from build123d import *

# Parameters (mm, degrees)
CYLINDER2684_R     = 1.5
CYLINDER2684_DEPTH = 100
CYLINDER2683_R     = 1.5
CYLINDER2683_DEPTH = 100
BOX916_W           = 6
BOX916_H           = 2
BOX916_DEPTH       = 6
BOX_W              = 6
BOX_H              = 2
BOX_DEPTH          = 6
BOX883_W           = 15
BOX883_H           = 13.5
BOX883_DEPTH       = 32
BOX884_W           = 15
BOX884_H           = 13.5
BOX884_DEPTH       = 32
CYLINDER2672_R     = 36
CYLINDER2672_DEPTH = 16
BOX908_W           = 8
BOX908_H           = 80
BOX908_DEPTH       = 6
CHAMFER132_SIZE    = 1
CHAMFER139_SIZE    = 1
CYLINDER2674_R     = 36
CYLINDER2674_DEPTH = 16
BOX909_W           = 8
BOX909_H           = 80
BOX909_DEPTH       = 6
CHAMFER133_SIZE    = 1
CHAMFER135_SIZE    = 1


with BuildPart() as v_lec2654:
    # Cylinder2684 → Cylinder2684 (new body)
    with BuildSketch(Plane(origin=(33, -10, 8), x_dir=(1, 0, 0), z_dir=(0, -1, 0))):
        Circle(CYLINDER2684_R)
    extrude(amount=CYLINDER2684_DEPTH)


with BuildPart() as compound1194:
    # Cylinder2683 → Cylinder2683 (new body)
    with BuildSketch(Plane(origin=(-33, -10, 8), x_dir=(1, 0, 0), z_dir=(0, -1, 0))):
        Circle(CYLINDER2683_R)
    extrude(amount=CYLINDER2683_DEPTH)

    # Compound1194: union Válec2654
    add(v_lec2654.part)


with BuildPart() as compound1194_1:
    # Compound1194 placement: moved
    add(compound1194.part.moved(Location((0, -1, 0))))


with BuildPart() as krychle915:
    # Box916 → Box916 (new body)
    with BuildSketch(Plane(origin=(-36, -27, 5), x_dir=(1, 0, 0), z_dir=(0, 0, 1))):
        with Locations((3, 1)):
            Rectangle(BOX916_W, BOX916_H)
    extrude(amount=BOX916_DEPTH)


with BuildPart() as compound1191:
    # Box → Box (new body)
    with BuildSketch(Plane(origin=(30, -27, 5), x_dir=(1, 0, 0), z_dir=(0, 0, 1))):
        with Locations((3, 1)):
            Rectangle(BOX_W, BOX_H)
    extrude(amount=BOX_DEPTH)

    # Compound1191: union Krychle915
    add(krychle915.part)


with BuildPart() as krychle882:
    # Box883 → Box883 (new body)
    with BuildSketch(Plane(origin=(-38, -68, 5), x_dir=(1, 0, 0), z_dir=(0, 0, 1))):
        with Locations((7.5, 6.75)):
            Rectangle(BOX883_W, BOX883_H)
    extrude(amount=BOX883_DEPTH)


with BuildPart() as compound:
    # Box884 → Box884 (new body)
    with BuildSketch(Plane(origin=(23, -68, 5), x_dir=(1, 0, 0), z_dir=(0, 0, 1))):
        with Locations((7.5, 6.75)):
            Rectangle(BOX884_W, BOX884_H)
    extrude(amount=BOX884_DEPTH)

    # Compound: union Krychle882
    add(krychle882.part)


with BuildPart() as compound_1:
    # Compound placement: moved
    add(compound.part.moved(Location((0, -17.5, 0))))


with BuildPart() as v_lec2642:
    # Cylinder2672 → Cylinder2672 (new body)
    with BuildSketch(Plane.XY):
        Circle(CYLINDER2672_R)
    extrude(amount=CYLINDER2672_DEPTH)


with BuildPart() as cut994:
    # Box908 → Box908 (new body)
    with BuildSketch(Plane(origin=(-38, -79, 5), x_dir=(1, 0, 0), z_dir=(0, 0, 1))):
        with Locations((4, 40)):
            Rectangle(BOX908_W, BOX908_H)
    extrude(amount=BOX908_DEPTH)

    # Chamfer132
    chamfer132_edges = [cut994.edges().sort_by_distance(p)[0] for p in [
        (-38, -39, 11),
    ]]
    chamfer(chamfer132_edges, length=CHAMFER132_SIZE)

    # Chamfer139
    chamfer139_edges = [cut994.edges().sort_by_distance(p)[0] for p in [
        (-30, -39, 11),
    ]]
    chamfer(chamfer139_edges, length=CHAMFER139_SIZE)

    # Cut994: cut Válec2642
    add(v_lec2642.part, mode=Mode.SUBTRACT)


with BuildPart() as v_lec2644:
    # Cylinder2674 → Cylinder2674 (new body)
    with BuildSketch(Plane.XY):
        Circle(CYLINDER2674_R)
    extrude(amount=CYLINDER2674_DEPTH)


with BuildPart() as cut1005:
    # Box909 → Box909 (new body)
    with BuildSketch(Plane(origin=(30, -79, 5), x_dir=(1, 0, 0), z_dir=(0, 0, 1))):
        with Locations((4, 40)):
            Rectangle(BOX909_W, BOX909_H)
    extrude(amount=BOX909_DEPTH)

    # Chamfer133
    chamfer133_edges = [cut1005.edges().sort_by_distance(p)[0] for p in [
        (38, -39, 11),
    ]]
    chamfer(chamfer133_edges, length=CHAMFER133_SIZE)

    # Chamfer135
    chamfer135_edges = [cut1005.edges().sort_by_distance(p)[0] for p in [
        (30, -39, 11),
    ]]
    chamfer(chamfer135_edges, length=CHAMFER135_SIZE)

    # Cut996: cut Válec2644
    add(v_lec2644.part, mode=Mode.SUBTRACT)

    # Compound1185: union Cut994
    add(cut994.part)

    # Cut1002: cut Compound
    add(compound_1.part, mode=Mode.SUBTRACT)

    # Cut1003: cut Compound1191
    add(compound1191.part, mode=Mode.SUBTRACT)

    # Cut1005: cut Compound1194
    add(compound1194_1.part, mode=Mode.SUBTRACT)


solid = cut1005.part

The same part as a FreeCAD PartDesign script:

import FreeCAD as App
import Part
import Sketcher
Q = App.Units.Quantity


def edges_at(feature, points):
    """Names of the edges that pass closest to the given points."""
    edges = feature.Shape.Edges
    near = lambda p: min(range(len(edges)), key=lambda i: edges[i].distToShape(Part.Vertex(*p))[0])
    return sorted({f"Edge{near(p) + 1}" for p in points})

doc = App.newDocument("Part")
body = doc.addObject("PartDesign::Body", "Body")

# Sketch on XZ plane
sketch1 = body.newObject("Sketcher::SketchObject", "Sketch")
sketch1.AttachmentSupport = (doc.getObject("XZ_Plane"), [""])
sketch1.MapMode = "FlatFace"
sketch1.AttachmentOffset = App.Placement(App.Vector(0, 0, 10), App.Rotation())
sketch1.addGeometry(Part.Circle(App.Vector(33, 8, 0), App.Vector(0, 0, 1), 1.5), False)
sketch1.addConstraint(Sketcher.Constraint("Diameter", 0, Q("3 mm")))
sketch1.addConstraint(Sketcher.Constraint("DistanceX", -1, 1, 0, 3, Q("33 mm")))
sketch1.addConstraint(Sketcher.Constraint("DistanceY", -1, 1, 0, 3, Q("8 mm")))
pad1 = body.newObject("PartDesign::Pad", "Pad")
pad1.Profile = sketch1
pad1.Length = 100
body2 = doc.addObject("PartDesign::Body", "Body001")
body2.AllowCompound = True

# Sketch on XZ plane
sketch2 = body2.newObject("Sketcher::SketchObject", "Sketch001")
sketch2.AttachmentSupport = (doc.getObject("XZ_Plane001"), [""])
sketch2.MapMode = "FlatFace"
sketch2.AttachmentOffset = App.Placement(App.Vector(0, 0, 10), App.Rotation())
sketch2.addGeometry(Part.Circle(App.Vector(-33, 8, 0), App.Vector(0, 0, 1), 1.5), False)
sketch2.addConstraint(Sketcher.Constraint("Diameter", 0, Q("3 mm")))
sketch2.addConstraint(Sketcher.Constraint("DistanceX", 0, 3, -1, 1, Q("33 mm")))
sketch2.addConstraint(Sketcher.Constraint("DistanceY", -1, 1, 0, 3, Q("8 mm")))
pad2 = body2.newObject("PartDesign::Pad", "Pad001")
pad2.Profile = sketch2
pad2.Length = 100
doc.recompute()

boolean = body2.newObject("PartDesign::Boolean", "Boolean")
boolean.Type = "Fuse"
boolean.addObjects([body])
body3 = doc.addObject("PartDesign::Body", "Body002")
body3.AllowCompound = True
doc.recompute()

body2.Placement = App.Placement(App.Vector(0, -1, 0), App.Rotation(App.Vector(0, 0, 1), 0))
boolean2 = body3.newObject("PartDesign::Boolean", "Boolean001")
boolean2.Type = "Fuse"
boolean2.addObjects([body2])
body4 = doc.addObject("PartDesign::Body", "Body003")

# Sketch on XY plane
sketch3 = body4.newObject("Sketcher::SketchObject", "Sketch002")
sketch3.AttachmentSupport = (doc.getObject("XY_Plane003"), [""])
sketch3.MapMode = "FlatFace"
sketch3.AttachmentOffset = App.Placement(App.Vector(0, 0, 5), App.Rotation())
sketch3.addGeometry(Part.LineSegment(App.Vector(-36, -25, 0), App.Vector(-36, -27, 0)), False)
sketch3.addGeometry(Part.LineSegment(App.Vector(-36, -27, 0), App.Vector(-30, -27, 0)), False)
sketch3.addGeometry(Part.LineSegment(App.Vector(-30, -27, 0), App.Vector(-30, -25, 0)), False)
sketch3.addGeometry(Part.LineSegment(App.Vector(-30, -25, 0), App.Vector(-36, -25, 0)), False)
sketch3.addConstraint(Sketcher.Constraint("Coincident", 0, 2, 1, 1))
sketch3.addConstraint(Sketcher.Constraint("Coincident", 1, 2, 2, 1))
sketch3.addConstraint(Sketcher.Constraint("Coincident", 2, 2, 3, 1))
sketch3.addConstraint(Sketcher.Constraint("Coincident", 3, 2, 0, 1))
sketch3.addConstraint(Sketcher.Constraint("Vertical", 0))
sketch3.addConstraint(Sketcher.Constraint("Horizontal", 1))
sketch3.addConstraint(Sketcher.Constraint("Vertical", 2))
sketch3.addConstraint(Sketcher.Constraint("Horizontal", 3))
sketch3.addConstraint(Sketcher.Constraint("DistanceX", 1, 1, 1, 2, Q("6 mm")))
sketch3.addConstraint(Sketcher.Constraint("DistanceY", 0, 2, 0, 1, Q("2 mm")))
sketch3.addConstraint(Sketcher.Constraint("DistanceX", 0, 2, -1, 1, Q("36 mm")))
sketch3.addConstraint(Sketcher.Constraint("DistanceY", 0, 2, -1, 1, Q("27 mm")))
pad3 = body4.newObject("PartDesign::Pad", "Pad002")
pad3.Profile = sketch3
pad3.Length = 6
body5 = doc.addObject("PartDesign::Body", "Body004")
body5.AllowCompound = True

# Sketch on XY plane
sketch4 = body5.newObject("Sketcher::SketchObject", "Sketch003")
sketch4.AttachmentSupport = (doc.getObject("XY_Plane004"), [""])
sketch4.MapMode = "FlatFace"
sketch4.AttachmentOffset = App.Placement(App.Vector(0, 0, 5), App.Rotation())
sketch4.addGeometry(Part.LineSegment(App.Vector(30, -25, 0), App.Vector(30, -27, 0)), False)
sketch4.addGeometry(Part.LineSegment(App.Vector(30, -27, 0), App.Vector(36, -27, 0)), False)
sketch4.addGeometry(Part.LineSegment(App.Vector(36, -27, 0), App.Vector(36, -25, 0)), False)
sketch4.addGeometry(Part.LineSegment(App.Vector(36, -25, 0), App.Vector(30, -25, 0)), False)
sketch4.addConstraint(Sketcher.Constraint("Coincident", 0, 2, 1, 1))
sketch4.addConstraint(Sketcher.Constraint("Coincident", 1, 2, 2, 1))
sketch4.addConstraint(Sketcher.Constraint("Coincident", 2, 2, 3, 1))
sketch4.addConstraint(Sketcher.Constraint("Coincident", 3, 2, 0, 1))
sketch4.addConstraint(Sketcher.Constraint("Vertical", 0))
sketch4.addConstraint(Sketcher.Constraint("Horizontal", 1))
sketch4.addConstraint(Sketcher.Constraint("Vertical", 2))
sketch4.addConstraint(Sketcher.Constraint("Horizontal", 3))
sketch4.addConstraint(Sketcher.Constraint("DistanceX", 1, 1, 1, 2, Q("6 mm")))
sketch4.addConstraint(Sketcher.Constraint("DistanceY", 0, 2, 0, 1, Q("2 mm")))
sketch4.addConstraint(Sketcher.Constraint("DistanceX", -1, 1, 0, 2, Q("30 mm")))
sketch4.addConstraint(Sketcher.Constraint("DistanceY", 0, 2, -1, 1, Q("27 mm")))
pad4 = body5.newObject("PartDesign::Pad", "Pad003")
pad4.Profile = sketch4
pad4.Length = 6
doc.recompute()

boolean3 = body5.newObject("PartDesign::Boolean", "Boolean002")
boolean3.Type = "Fuse"
boolean3.addObjects([body4])
body6 = doc.addObject("PartDesign::Body", "Body005")

# Sketch on XY plane
sketch5 = body6.newObject("Sketcher::SketchObject", "Sketch004")
sketch5.AttachmentSupport = (doc.getObject("XY_Plane005"), [""])
sketch5.MapMode = "FlatFace"
sketch5.AttachmentOffset = App.Placement(App.Vector(0, 0, 5), App.Rotation())
sketch5.addGeometry(Part.LineSegment(App.Vector(-38, -54.5, 0), App.Vector(-38, -68, 0)), False)
sketch5.addGeometry(Part.LineSegment(App.Vector(-38, -68, 0), App.Vector(-23, -68, 0)), False)
sketch5.addGeometry(Part.LineSegment(App.Vector(-23, -68, 0), App.Vector(-23, -54.5, 0)), False)
sketch5.addGeometry(Part.LineSegment(App.Vector(-23, -54.5, 0), App.Vector(-38, -54.5, 0)), False)
sketch5.addConstraint(Sketcher.Constraint("Coincident", 0, 2, 1, 1))
sketch5.addConstraint(Sketcher.Constraint("Coincident", 1, 2, 2, 1))
sketch5.addConstraint(Sketcher.Constraint("Coincident", 2, 2, 3, 1))
sketch5.addConstraint(Sketcher.Constraint("Coincident", 3, 2, 0, 1))
sketch5.addConstraint(Sketcher.Constraint("Vertical", 0))
sketch5.addConstraint(Sketcher.Constraint("Horizontal", 1))
sketch5.addConstraint(Sketcher.Constraint("Vertical", 2))
sketch5.addConstraint(Sketcher.Constraint("Horizontal", 3))
sketch5.addConstraint(Sketcher.Constraint("DistanceX", 1, 1, 1, 2, Q("15 mm")))
sketch5.addConstraint(Sketcher.Constraint("DistanceY", 0, 2, 0, 1, Q("13.5 mm")))
sketch5.addConstraint(Sketcher.Constraint("DistanceX", 0, 2, -1, 1, Q("38 mm")))
sketch5.addConstraint(Sketcher.Constraint("DistanceY", 0, 2, -1, 1, Q("68 mm")))
pad5 = body6.newObject("PartDesign::Pad", "Pad004")
pad5.Profile = sketch5
pad5.Length = 32
body7 = doc.addObject("PartDesign::Body", "Body006")
body7.AllowCompound = True

# Sketch on XY plane
sketch6 = body7.newObject("Sketcher::SketchObject", "Sketch005")
sketch6.AttachmentSupport = (doc.getObject("XY_Plane006"), [""])
sketch6.MapMode = "FlatFace"
sketch6.AttachmentOffset = App.Placement(App.Vector(0, 0, 5), App.Rotation())
sketch6.addGeometry(Part.LineSegment(App.Vector(23, -54.5, 0), App.Vector(23, -68, 0)), False)
sketch6.addGeometry(Part.LineSegment(App.Vector(23, -68, 0), App.Vector(38, -68, 0)), False)
sketch6.addGeometry(Part.LineSegment(App.Vector(38, -68, 0), App.Vector(38, -54.5, 0)), False)
sketch6.addGeometry(Part.LineSegment(App.Vector(38, -54.5, 0), App.Vector(23, -54.5, 0)), False)
sketch6.addConstraint(Sketcher.Constraint("Coincident", 0, 2, 1, 1))
sketch6.addConstraint(Sketcher.Constraint("Coincident", 1, 2, 2, 1))
sketch6.addConstraint(Sketcher.Constraint("Coincident", 2, 2, 3, 1))
sketch6.addConstraint(Sketcher.Constraint("Coincident", 3, 2, 0, 1))
sketch6.addConstraint(Sketcher.Constraint("Vertical", 0))
sketch6.addConstraint(Sketcher.Constraint("Horizontal", 1))
sketch6.addConstraint(Sketcher.Constraint("Vertical", 2))
sketch6.addConstraint(Sketcher.Constraint("Horizontal", 3))
sketch6.addConstraint(Sketcher.Constraint("DistanceX", 1, 1, 1, 2, Q("15 mm")))
sketch6.addConstraint(Sketcher.Constraint("DistanceY", 0, 2, 0, 1, Q("13.5 mm")))
sketch6.addConstraint(Sketcher.Constraint("DistanceX", -1, 1, 0, 2, Q("23 mm")))
sketch6.addConstraint(Sketcher.Constraint("DistanceY", 0, 2, -1, 1, Q("68 mm")))
pad6 = body7.newObject("PartDesign::Pad", "Pad005")
pad6.Profile = sketch6
pad6.Length = 32
doc.recompute()

boolean4 = body7.newObject("PartDesign::Boolean", "Boolean003")
boolean4.Type = "Fuse"
boolean4.addObjects([body6])
body8 = doc.addObject("PartDesign::Body", "Body007")
body8.AllowCompound = True
doc.recompute()

body7.Placement = App.Placement(App.Vector(0, -17.5, 0), App.Rotation(App.Vector(0, 0, 1), 0))
boolean5 = body8.newObject("PartDesign::Boolean", "Boolean004")
boolean5.Type = "Fuse"
boolean5.addObjects([body7])
body9 = doc.addObject("PartDesign::Body", "Body008")

# Sketch on XY plane
sketch7 = body9.newObject("Sketcher::SketchObject", "Sketch006")
sketch7.AttachmentSupport = (doc.getObject("XY_Plane008"), [""])
sketch7.MapMode = "FlatFace"
sketch7.addGeometry(Part.Circle(App.Vector(0, 0, 0), App.Vector(0, 0, 1), 36), False)
sketch7.addConstraint(Sketcher.Constraint("Coincident", 0, 3, -1, 1))
sketch7.addConstraint(Sketcher.Constraint("Diameter", 0, Q("72 mm")))
pad7 = body9.newObject("PartDesign::Pad", "Pad006")
pad7.Profile = sketch7
pad7.Length = 16
body10 = doc.addObject("PartDesign::Body", "Body009")

# Sketch on XY plane
sketch8 = body10.newObject("Sketcher::SketchObject", "Sketch007")
sketch8.AttachmentSupport = (doc.getObject("XY_Plane009"), [""])
sketch8.MapMode = "FlatFace"
sketch8.AttachmentOffset = App.Placement(App.Vector(0, 0, 5), App.Rotation())
sketch8.addGeometry(Part.LineSegment(App.Vector(-38, 1, 0), App.Vector(-38, -79, 0)), False)
sketch8.addGeometry(Part.LineSegment(App.Vector(-38, -79, 0), App.Vector(-30, -79, 0)), False)
sketch8.addGeometry(Part.LineSegment(App.Vector(-30, -79, 0), App.Vector(-30, 1, 0)), False)
sketch8.addGeometry(Part.LineSegment(App.Vector(-30, 1, 0), App.Vector(-38, 1, 0)), False)
sketch8.addConstraint(Sketcher.Constraint("Coincident", 0, 2, 1, 1))
sketch8.addConstraint(Sketcher.Constraint("Coincident", 1, 2, 2, 1))
sketch8.addConstraint(Sketcher.Constraint("Coincident", 2, 2, 3, 1))
sketch8.addConstraint(Sketcher.Constraint("Coincident", 3, 2, 0, 1))
sketch8.addConstraint(Sketcher.Constraint("Vertical", 0))
sketch8.addConstraint(Sketcher.Constraint("Horizontal", 1))
sketch8.addConstraint(Sketcher.Constraint("Vertical", 2))
sketch8.addConstraint(Sketcher.Constraint("Horizontal", 3))
sketch8.addConstraint(Sketcher.Constraint("DistanceX", 1, 1, 1, 2, Q("8 mm")))
sketch8.addConstraint(Sketcher.Constraint("DistanceY", 0, 2, 0, 1, Q("80 mm")))
sketch8.addConstraint(Sketcher.Constraint("DistanceX", 0, 2, -1, 1, Q("38 mm")))
sketch8.addConstraint(Sketcher.Constraint("DistanceY", 0, 2, -1, 1, Q("79 mm")))
pad8 = body10.newObject("PartDesign::Pad", "Pad007")
pad8.Profile = sketch8
pad8.Length = 6
doc.recompute()

chamfer = body10.newObject("PartDesign::Chamfer", "Chamfer")
chamfer.Base = (pad8, edges_at(pad8, [(-38, -39, 11)]))
chamfer.Size = 1
doc.recompute()

chamfer2 = body10.newObject("PartDesign::Chamfer", "Chamfer001")
chamfer2.Base = (chamfer, edges_at(chamfer, [(-30, -39, 11)]))
chamfer2.Size = 1
doc.recompute()

boolean6 = body10.newObject("PartDesign::Boolean", "Boolean005")
boolean6.Type = "Cut"
boolean6.addObjects([body9])
body11 = doc.addObject("PartDesign::Body", "Body010")

# Sketch on XY plane
sketch9 = body11.newObject("Sketcher::SketchObject", "Sketch008")
sketch9.AttachmentSupport = (doc.getObject("XY_Plane010"), [""])
sketch9.MapMode = "FlatFace"
sketch9.addGeometry(Part.Circle(App.Vector(0, 0, 0), App.Vector(0, 0, 1), 36), False)
sketch9.addConstraint(Sketcher.Constraint("Coincident", 0, 3, -1, 1))
sketch9.addConstraint(Sketcher.Constraint("Diameter", 0, Q("72 mm")))
pad9 = body11.newObject("PartDesign::Pad", "Pad008")
pad9.Profile = sketch9
pad9.Length = 16
body12 = doc.addObject("PartDesign::Body", "Body011")
body12.AllowCompound = True

# Sketch on XY plane
sketch10 = body12.newObject("Sketcher::SketchObject", "Sketch009")
sketch10.AttachmentSupport = (doc.getObject("XY_Plane011"), [""])
sketch10.MapMode = "FlatFace"
sketch10.AttachmentOffset = App.Placement(App.Vector(0, 0, 5), App.Rotation())
sketch10.addGeometry(Part.LineSegment(App.Vector(30, 1, 0), App.Vector(30, -79, 0)), False)
sketch10.addGeometry(Part.LineSegment(App.Vector(30, -79, 0), App.Vector(38, -79, 0)), False)
sketch10.addGeometry(Part.LineSegment(App.Vector(38, -79, 0), App.Vector(38, 1, 0)), False)
sketch10.addGeometry(Part.LineSegment(App.Vector(38, 1, 0), App.Vector(30, 1, 0)), False)
sketch10.addConstraint(Sketcher.Constraint("Coincident", 0, 2, 1, 1))
sketch10.addConstraint(Sketcher.Constraint("Coincident", 1, 2, 2, 1))
sketch10.addConstraint(Sketcher.Constraint("Coincident", 2, 2, 3, 1))
sketch10.addConstraint(Sketcher.Constraint("Coincident", 3, 2, 0, 1))
sketch10.addConstraint(Sketcher.Constraint("Vertical", 0))
sketch10.addConstraint(Sketcher.Constraint("Horizontal", 1))
sketch10.addConstraint(Sketcher.Constraint("Vertical", 2))
sketch10.addConstraint(Sketcher.Constraint("Horizontal", 3))
sketch10.addConstraint(Sketcher.Constraint("DistanceX", 1, 1, 1, 2, Q("8 mm")))
sketch10.addConstraint(Sketcher.Constraint("DistanceY", 0, 2, 0, 1, Q("80 mm")))
sketch10.addConstraint(Sketcher.Constraint("DistanceX", -1, 1, 0, 2, Q("30 mm")))
sketch10.addConstraint(Sketcher.Constraint("DistanceY", 0, 2, -1, 1, Q("79 mm")))
pad10 = body12.newObject("PartDesign::Pad", "Pad009")
pad10.Profile = sketch10
pad10.Length = 6
doc.recompute()

chamfer3 = body12.newObject("PartDesign::Chamfer", "Chamfer002")
chamfer3.Base = (pad10, edges_at(pad10, [(38, -39, 11)]))
chamfer3.Size = 1
doc.recompute()

chamfer4 = body12.newObject("PartDesign::Chamfer", "Chamfer003")
chamfer4.Base = (chamfer3, edges_at(chamfer3, [(30, -39, 11)]))
chamfer4.Size = 1
doc.recompute()

boolean7 = body12.newObject("PartDesign::Boolean", "Boolean006")
boolean7.Type = "Cut"
boolean7.addObjects([body11])
doc.recompute()

boolean8 = body12.newObject("PartDesign::Boolean", "Boolean007")
boolean8.Type = "Fuse"
boolean8.addObjects([body10])
doc.recompute()

boolean9 = body12.newObject("PartDesign::Boolean", "Boolean008")
boolean9.Type = "Cut"
boolean9.addObjects([body8])
doc.recompute()

boolean10 = body12.newObject("PartDesign::Boolean", "Boolean009")
boolean10.Type = "Cut"
boolean10.addObjects([body5])
doc.recompute()

boolean11 = body12.newObject("PartDesign::Boolean", "Boolean010")
boolean11.Type = "Cut"
boolean11.addObjects([body3])

doc.recompute()
